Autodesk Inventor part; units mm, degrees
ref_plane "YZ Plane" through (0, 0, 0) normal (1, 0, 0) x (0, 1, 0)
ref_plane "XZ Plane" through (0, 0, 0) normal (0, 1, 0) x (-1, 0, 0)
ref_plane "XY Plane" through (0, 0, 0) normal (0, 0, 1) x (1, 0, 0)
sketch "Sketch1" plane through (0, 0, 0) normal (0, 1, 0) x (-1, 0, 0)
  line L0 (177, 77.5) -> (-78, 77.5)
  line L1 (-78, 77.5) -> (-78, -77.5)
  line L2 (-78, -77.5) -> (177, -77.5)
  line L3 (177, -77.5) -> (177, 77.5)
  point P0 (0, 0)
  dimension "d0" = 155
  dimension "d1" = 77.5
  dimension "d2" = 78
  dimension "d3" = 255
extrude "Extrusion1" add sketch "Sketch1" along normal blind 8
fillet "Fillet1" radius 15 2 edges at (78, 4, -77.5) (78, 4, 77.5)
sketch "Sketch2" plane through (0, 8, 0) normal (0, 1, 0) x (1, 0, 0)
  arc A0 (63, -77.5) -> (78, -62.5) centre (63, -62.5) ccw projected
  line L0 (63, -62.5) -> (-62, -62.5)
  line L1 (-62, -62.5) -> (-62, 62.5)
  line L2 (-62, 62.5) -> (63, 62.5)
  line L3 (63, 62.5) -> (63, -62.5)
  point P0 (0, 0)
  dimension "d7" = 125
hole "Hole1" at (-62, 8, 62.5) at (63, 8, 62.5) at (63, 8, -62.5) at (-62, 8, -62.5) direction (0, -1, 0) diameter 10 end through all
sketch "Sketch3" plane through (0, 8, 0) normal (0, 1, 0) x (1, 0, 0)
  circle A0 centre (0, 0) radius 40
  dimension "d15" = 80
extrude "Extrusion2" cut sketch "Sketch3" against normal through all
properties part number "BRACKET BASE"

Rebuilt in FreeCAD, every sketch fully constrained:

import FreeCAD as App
import Part
import Sketcher
from FreeCAD import Vector
Q = App.Units.Quantity


def edges_at(feature, points):
    """Names of the edges that pass closest to the given points."""
    edges = feature.Shape.Edges
    near = lambda p: min(range(len(edges)), key=lambda i: edges[i].distToShape(Part.Vertex(*p))[0])
    return sorted({f"Edge{near(p) + 1}" for p in points})

doc = App.newDocument("Part")
body = doc.addObject("PartDesign::Body", "Body")

sketch1 = body.newObject("Sketcher::SketchObject", "Sketch")
sketch1.AttachmentSupport = (doc.getObject("XZ_Plane"), [""])
sketch1.MapMode = "FlatFace"
sketch1.addGeometry([
    Part.LineSegment(Vector(-177, -77.5, 0), Vector(-177, 77.5, 0)),
    Part.LineSegment(Vector(-177, 77.5, 0), Vector(78, 77.5, 0)),
    Part.LineSegment(Vector(78, 77.5, 0), Vector(78, -77.5, 0)),
    Part.LineSegment(Vector(78, -77.5, 0), Vector(-177, -77.5, 0)),
], False)
sketch1.addConstraint([
    Sketcher.Constraint("Coincident", 0, 2, 1, 1),
    Sketcher.Constraint("Coincident", 1, 2, 2, 1),
    Sketcher.Constraint("Coincident", 2, 2, 3, 1),
    Sketcher.Constraint("Coincident", 3, 2, 0, 1),
    Sketcher.Constraint("Vertical", 0),
    Sketcher.Constraint("Horizontal", 1),
    Sketcher.Constraint("Vertical", 2),
    Sketcher.Constraint("Horizontal", 3),
    Sketcher.Constraint("DistanceX", 1, 1, 1, 2, Q("255 mm")),
    Sketcher.Constraint("DistanceY", 0, 1, 0, 2, Q("155 mm")),
    Sketcher.Constraint("DistanceX", -1, 1, 1, 2, Q("78 mm")),
    Sketcher.Constraint("DistanceY", -1, 1, 0, 2, Q("77.5 mm")),
])
pad1 = body.newObject("PartDesign::Pad", "Pad")
pad1.Profile = sketch1
pad1.Length = 8
pad1.Reversed = True
doc.recompute()

fillet = body.newObject("PartDesign::Fillet", "Fillet")
fillet.Base = (pad1, edges_at(pad1, [(78, 4, -77.5), (78, 4, 77.5)]))
fillet.Radius = 15

sketch2 = body.newObject("Sketcher::SketchObject", "Sketch001")
sketch2.AttachmentSupport = (doc.getObject("XZ_Plane"), [""])
sketch2.MapMode = "FlatFace"
sketch2.AttachmentOffset = App.Placement(Vector(0, 0, -8), App.Rotation())
sketch2.addGeometry([
    Part.Circle(Vector(-62, 62.5, 0), Vector(0, 0, 1), 5),
    Part.Circle(Vector(63, 62.5, 0), Vector(0, 0, 1), 5),
    Part.Circle(Vector(63, -62.5, 0), Vector(0, 0, 1), 5),
    Part.Circle(Vector(-62, -62.5, 0), Vector(0, 0, 1), 5),
], False)
sketch2.addConstraint([
    Sketcher.Constraint("Equal", 0, 1),
    Sketcher.Constraint("Equal", 1, 2),
    Sketcher.Constraint("Equal", 2, 3),
    Sketcher.Constraint("Symmetric", 1, 3, 2, 3, -1),
    Sketcher.Constraint("Symmetric", 0, 3, 3, 3, -1),
    Sketcher.Constraint("Horizontal", 0, 3, 1, 3),
    Sketcher.Constraint("Diameter", 0, Q("10 mm")),
    Sketcher.Constraint("DistanceX", 0, 3, -1, 1, Q("62 mm")),
    Sketcher.Constraint("DistanceX", -1, 1, 1, 3, Q("63 mm")),
    Sketcher.Constraint("DistanceY", 2, 3, 1, 3, Q("125 mm")),
])
doc.recompute()
hole = body.newObject("PartDesign::Hole", "Hole")
hole.Profile = sketch2
hole.ThreadType = "None"
hole.Diameter = 10
hole.DepthType = "ThroughAll"
hole.Reversed = True

sketch3 = body.newObject("Sketcher::SketchObject", "Sketch002")
sketch3.AttachmentSupport = (doc.getObject("XZ_Plane"), [""])
sketch3.MapMode = "FlatFace"
sketch3.AttachmentOffset = App.Placement(Vector(0, 0, -8), App.Rotation())
sketch3.addGeometry(Part.Circle(Vector(0, 0, 0), Vector(0, 0, 1), 40), False)
sketch3.addConstraint([
    Sketcher.Constraint("Coincident", 0, 3, -1, 1),
    Sketcher.Constraint("Diameter", 0, Q("80 mm")),
])
pocket1 = body.newObject("PartDesign::Pocket", "Pocket")
pocket1.Profile = sketch3
pocket1.Type = "ThroughAll"
pocket1.Reversed = True

doc.recompute()
